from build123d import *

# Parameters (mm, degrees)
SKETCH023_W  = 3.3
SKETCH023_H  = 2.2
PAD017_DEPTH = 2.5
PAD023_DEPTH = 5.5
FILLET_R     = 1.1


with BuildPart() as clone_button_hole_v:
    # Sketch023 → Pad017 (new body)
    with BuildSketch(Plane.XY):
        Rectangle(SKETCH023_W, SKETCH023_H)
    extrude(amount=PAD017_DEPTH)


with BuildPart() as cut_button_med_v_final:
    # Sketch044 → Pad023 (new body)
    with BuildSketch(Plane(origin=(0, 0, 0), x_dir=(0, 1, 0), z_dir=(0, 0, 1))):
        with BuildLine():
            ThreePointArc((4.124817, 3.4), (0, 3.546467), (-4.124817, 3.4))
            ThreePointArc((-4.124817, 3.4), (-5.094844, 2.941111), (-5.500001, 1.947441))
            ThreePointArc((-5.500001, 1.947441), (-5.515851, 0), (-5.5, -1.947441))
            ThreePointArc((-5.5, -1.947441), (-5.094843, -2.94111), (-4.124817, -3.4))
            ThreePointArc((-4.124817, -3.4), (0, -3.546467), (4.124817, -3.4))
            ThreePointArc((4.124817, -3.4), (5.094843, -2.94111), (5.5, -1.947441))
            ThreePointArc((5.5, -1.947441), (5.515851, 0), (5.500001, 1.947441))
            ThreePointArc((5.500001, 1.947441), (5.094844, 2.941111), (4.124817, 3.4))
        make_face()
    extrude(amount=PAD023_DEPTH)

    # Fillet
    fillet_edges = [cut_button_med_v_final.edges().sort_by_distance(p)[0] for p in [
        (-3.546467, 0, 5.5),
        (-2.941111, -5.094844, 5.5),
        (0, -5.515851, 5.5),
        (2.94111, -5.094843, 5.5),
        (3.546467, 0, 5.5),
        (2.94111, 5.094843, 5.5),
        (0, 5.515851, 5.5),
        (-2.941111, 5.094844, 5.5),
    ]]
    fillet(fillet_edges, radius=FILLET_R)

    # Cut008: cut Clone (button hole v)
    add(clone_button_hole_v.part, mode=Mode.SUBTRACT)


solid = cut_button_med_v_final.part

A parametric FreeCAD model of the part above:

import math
import FreeCAD as App
import Part
import Sketcher
from FreeCAD import Vector
Q = App.Units.Quantity


def edges_at(feature, points):
    """Names of the edges that pass closest to the given points."""
    edges = feature.Shape.Edges
    near = lambda p: min(range(len(edges)), key=lambda i: edges[i].distToShape(Part.Vertex(*p))[0])
    return sorted({f"Edge{near(p) + 1}" for p in points})


def add_polygon(sketch, points):
    """Adds a closed chain of lines whose ends are joined by coincident constraints."""
    first, n = sketch.GeometryCount, len(points)
    for a, b in zip(points, points[1:] + points[:1]):
        sketch.addGeometry(Part.LineSegment(App.Vector(*a, 0), App.Vector(*b, 0)), False)
    for i in range(n):
        sketch.addConstraint(Sketcher.Constraint("Coincident", first + i, 2, first + (i + 1) % n, 1))

doc = App.newDocument("Part")
body = doc.addObject("PartDesign::Body", "Body")

# Sketch on XY plane
sketch1 = doc.addObject("Sketcher::SketchObject", "Sketch")
body.addObject(sketch1)
sketch1.AttachmentSupport = (doc.XY_Plane, [""])
sketch1.MapMode = "FlatFace"
add_polygon(sketch1, [(-1.6, 1.1), (-1.6, -1.1), (1.6, -1.1), (1.6, 1.1)])  # lines 0-3
sketch1.addConstraint([
    Sketcher.Constraint("Vertical", 0),
    Sketcher.Constraint("Horizontal", 1),
    Sketcher.Constraint("Vertical", 2),
    Sketcher.Constraint("Horizontal", 3),
    Sketcher.Constraint("Symmetric", 0, 2, 2, 2, -1, 1),
    Sketcher.Constraint("DistanceX", 1, 1, 1, 2, Q("3.3 mm")),
    Sketcher.Constraint("DistanceY", 0, 2, 0, 1, Q("2.2 mm")),
])
pad1 = doc.addObject("PartDesign::Pad", "Pad")
body.addObject(pad1)
pad1.Profile = sketch1
pad1.Length = 2.5
body2 = doc.addObject("PartDesign::Body", "Body001")

# Sketch on XY plane
sketch2 = doc.addObject("Sketcher::SketchObject", "Sketch001")
body2.addObject(sketch2)
sketch2.AttachmentSupport = (doc.getObject("XY_Plane001"), [""])
sketch2.MapMode = "FlatFace"
sketch2.addGeometry([
    Part.ArcOfCircle(Part.Circle(Vector(54.608503, 0, 0), Vector(0, 0, 1), 58.15497), math.radians(175.932709), math.radians(184.067291)),  # 0
    Part.ArcOfCircle(Part.Circle(Vector(-1.923347, -4.019816, 0), Vector(0, 0, 1), 1.480381), math.radians(-175.932683), math.radians(-90.932552)),  # 1
    Part.ArcOfCircle(Part.Circle(Vector(-0.000031, 114.126359, 0), Vector(0, 0, 1), 119.64221), math.radians(-90.932642), math.radians(-89.067329)),  # 2
    Part.ArcOfCircle(Part.Circle(Vector(1.923345, -4.019813, 0), Vector(0, 0, 1), 1.480383), math.radians(-89.067378), math.radians(-4.067429)),  # 3
    Part.ArcOfCircle(Part.Circle(Vector(-54.608503, 0, 0), Vector(0, 0, 1), 58.15497), math.radians(-4.067291), math.radians(4.067291)),  # 4
    Part.ArcOfCircle(Part.Circle(Vector(1.923345, 4.019813, 0), Vector(0, 0, 1), 1.480383), math.radians(4.067429), math.radians(89.067378)),  # 5
    Part.ArcOfCircle(Part.Circle(Vector(-0.000031, -114.126359, 0), Vector(0, 0, 1), 119.64221), math.radians(89.067329), math.radians(90.932642)),  # 6
    Part.ArcOfCircle(Part.Circle(Vector(-1.923347, 4.019816, 0), Vector(0, 0, 1), 1.480381), math.radians(90.932552), math.radians(175.932683)),  # 7
], False)
sketch2.addConstraint([
    Sketcher.Constraint("Coincident", 0, 2, 1, 1),
    Sketcher.Constraint("Coincident", 1, 2, 2, 1),
    Sketcher.Constraint("Coincident", 2, 2, 3, 1),
    Sketcher.Constraint("Coincident", 3, 2, 4, 1),
    Sketcher.Constraint("Coincident", 4, 2, 5, 1),
    Sketcher.Constraint("Coincident", 5, 2, 6, 1),
    Sketcher.Constraint("Coincident", 6, 2, 7, 1),
    Sketcher.Constraint("Coincident", 7, 2, 0, 1),
    Sketcher.Constraint("PointOnObject", 0, 3, -1),
    Sketcher.Constraint("PointOnObject", 4, 3, -1),
    Sketcher.Constraint("DistanceX", 0, 2, -1, 1, Q("3.4 mm")),
    Sketcher.Constraint("DistanceY", 1, 2, -1, 1, Q("5.500001 mm")),
    Sketcher.Constraint("DistanceY", 2, 2, -1, 1, Q("5.5 mm")),
    Sketcher.Constraint("DistanceX", -1, 1, 3, 2, Q("3.4 mm")),
    Sketcher.Constraint("DistanceX", -1, 1, 4, 2, Q("3.4 mm")),
    Sketcher.Constraint("DistanceY", -1, 1, 5, 2, Q("5.5 mm")),
    Sketcher.Constraint("DistanceY", -1, 1, 6, 2, Q("5.500001 mm")),
    Sketcher.Constraint("DistanceX", 7, 2, -1, 1, Q("3.4 mm")),
    Sketcher.Constraint("Radius", 0, Q("58.15497 mm")),
    Sketcher.Constraint("Radius", 1, Q("1.480381 mm")),
    Sketcher.Constraint("Radius", 2, Q("119.64221 mm")),
    Sketcher.Constraint("Radius", 4, Q("58.15497 mm")),
    Sketcher.Constraint("Radius", 6, Q("119.64221 mm")),
    Sketcher.Constraint("Radius", 7, Q("1.480381 mm")),
    Sketcher.Constraint("Radius", 3, Q("1.480383 mm")),
    Sketcher.Constraint("Radius", 5, Q("1.480383 mm")),
    Sketcher.Constraint("DistanceY", 0, 2, 1, 3, Q("0.105001 mm")),
    Sketcher.Constraint("DistanceY", 3, 2, 1, 3, Q("0.105001 mm")),
    Sketcher.Constraint("DistanceY", 7, 3, 7, 2, Q("0.105001 mm")),
    Sketcher.Constraint("DistanceY", -1, 1, 2, 3, Q("114.126359 mm")),
    Sketcher.Constraint("DistanceY", 6, 3, -1, 1, Q("114.126359 mm")),
    Sketcher.Constraint("DistanceX", 1, 2, -1, 1, Q("1.947441 mm")),
])
pad2 = doc.addObject("PartDesign::Pad", "Pad001")
body2.addObject(pad2)
pad2.Profile = sketch2
pad2.Length = 5.5
doc.recompute()

fillet = doc.addObject("PartDesign::Fillet", "Fillet")
body2.addObject(fillet)
fillet.Base = (pad2, edges_at(pad2, [
    (-3.546, 0, 5.5),
    (-2.941, -5.095, 5.5),
    (0, -5.516, 5.5),
    (2.941, -5.095, 5.5),
    (3.546, 0, 5.5),
    (2.941, 5.095, 5.5),
    (0, 5.516, 5.5),
    (-2.941, 5.095, 5.5),
]))
fillet.Radius = 1.1
doc.recompute()

boolean = doc.addObject("PartDesign::Boolean", "Boolean")
body2.addObject(boolean)
boolean.Type = "Cut"
boolean.addObjects([body])

doc.recompute()
